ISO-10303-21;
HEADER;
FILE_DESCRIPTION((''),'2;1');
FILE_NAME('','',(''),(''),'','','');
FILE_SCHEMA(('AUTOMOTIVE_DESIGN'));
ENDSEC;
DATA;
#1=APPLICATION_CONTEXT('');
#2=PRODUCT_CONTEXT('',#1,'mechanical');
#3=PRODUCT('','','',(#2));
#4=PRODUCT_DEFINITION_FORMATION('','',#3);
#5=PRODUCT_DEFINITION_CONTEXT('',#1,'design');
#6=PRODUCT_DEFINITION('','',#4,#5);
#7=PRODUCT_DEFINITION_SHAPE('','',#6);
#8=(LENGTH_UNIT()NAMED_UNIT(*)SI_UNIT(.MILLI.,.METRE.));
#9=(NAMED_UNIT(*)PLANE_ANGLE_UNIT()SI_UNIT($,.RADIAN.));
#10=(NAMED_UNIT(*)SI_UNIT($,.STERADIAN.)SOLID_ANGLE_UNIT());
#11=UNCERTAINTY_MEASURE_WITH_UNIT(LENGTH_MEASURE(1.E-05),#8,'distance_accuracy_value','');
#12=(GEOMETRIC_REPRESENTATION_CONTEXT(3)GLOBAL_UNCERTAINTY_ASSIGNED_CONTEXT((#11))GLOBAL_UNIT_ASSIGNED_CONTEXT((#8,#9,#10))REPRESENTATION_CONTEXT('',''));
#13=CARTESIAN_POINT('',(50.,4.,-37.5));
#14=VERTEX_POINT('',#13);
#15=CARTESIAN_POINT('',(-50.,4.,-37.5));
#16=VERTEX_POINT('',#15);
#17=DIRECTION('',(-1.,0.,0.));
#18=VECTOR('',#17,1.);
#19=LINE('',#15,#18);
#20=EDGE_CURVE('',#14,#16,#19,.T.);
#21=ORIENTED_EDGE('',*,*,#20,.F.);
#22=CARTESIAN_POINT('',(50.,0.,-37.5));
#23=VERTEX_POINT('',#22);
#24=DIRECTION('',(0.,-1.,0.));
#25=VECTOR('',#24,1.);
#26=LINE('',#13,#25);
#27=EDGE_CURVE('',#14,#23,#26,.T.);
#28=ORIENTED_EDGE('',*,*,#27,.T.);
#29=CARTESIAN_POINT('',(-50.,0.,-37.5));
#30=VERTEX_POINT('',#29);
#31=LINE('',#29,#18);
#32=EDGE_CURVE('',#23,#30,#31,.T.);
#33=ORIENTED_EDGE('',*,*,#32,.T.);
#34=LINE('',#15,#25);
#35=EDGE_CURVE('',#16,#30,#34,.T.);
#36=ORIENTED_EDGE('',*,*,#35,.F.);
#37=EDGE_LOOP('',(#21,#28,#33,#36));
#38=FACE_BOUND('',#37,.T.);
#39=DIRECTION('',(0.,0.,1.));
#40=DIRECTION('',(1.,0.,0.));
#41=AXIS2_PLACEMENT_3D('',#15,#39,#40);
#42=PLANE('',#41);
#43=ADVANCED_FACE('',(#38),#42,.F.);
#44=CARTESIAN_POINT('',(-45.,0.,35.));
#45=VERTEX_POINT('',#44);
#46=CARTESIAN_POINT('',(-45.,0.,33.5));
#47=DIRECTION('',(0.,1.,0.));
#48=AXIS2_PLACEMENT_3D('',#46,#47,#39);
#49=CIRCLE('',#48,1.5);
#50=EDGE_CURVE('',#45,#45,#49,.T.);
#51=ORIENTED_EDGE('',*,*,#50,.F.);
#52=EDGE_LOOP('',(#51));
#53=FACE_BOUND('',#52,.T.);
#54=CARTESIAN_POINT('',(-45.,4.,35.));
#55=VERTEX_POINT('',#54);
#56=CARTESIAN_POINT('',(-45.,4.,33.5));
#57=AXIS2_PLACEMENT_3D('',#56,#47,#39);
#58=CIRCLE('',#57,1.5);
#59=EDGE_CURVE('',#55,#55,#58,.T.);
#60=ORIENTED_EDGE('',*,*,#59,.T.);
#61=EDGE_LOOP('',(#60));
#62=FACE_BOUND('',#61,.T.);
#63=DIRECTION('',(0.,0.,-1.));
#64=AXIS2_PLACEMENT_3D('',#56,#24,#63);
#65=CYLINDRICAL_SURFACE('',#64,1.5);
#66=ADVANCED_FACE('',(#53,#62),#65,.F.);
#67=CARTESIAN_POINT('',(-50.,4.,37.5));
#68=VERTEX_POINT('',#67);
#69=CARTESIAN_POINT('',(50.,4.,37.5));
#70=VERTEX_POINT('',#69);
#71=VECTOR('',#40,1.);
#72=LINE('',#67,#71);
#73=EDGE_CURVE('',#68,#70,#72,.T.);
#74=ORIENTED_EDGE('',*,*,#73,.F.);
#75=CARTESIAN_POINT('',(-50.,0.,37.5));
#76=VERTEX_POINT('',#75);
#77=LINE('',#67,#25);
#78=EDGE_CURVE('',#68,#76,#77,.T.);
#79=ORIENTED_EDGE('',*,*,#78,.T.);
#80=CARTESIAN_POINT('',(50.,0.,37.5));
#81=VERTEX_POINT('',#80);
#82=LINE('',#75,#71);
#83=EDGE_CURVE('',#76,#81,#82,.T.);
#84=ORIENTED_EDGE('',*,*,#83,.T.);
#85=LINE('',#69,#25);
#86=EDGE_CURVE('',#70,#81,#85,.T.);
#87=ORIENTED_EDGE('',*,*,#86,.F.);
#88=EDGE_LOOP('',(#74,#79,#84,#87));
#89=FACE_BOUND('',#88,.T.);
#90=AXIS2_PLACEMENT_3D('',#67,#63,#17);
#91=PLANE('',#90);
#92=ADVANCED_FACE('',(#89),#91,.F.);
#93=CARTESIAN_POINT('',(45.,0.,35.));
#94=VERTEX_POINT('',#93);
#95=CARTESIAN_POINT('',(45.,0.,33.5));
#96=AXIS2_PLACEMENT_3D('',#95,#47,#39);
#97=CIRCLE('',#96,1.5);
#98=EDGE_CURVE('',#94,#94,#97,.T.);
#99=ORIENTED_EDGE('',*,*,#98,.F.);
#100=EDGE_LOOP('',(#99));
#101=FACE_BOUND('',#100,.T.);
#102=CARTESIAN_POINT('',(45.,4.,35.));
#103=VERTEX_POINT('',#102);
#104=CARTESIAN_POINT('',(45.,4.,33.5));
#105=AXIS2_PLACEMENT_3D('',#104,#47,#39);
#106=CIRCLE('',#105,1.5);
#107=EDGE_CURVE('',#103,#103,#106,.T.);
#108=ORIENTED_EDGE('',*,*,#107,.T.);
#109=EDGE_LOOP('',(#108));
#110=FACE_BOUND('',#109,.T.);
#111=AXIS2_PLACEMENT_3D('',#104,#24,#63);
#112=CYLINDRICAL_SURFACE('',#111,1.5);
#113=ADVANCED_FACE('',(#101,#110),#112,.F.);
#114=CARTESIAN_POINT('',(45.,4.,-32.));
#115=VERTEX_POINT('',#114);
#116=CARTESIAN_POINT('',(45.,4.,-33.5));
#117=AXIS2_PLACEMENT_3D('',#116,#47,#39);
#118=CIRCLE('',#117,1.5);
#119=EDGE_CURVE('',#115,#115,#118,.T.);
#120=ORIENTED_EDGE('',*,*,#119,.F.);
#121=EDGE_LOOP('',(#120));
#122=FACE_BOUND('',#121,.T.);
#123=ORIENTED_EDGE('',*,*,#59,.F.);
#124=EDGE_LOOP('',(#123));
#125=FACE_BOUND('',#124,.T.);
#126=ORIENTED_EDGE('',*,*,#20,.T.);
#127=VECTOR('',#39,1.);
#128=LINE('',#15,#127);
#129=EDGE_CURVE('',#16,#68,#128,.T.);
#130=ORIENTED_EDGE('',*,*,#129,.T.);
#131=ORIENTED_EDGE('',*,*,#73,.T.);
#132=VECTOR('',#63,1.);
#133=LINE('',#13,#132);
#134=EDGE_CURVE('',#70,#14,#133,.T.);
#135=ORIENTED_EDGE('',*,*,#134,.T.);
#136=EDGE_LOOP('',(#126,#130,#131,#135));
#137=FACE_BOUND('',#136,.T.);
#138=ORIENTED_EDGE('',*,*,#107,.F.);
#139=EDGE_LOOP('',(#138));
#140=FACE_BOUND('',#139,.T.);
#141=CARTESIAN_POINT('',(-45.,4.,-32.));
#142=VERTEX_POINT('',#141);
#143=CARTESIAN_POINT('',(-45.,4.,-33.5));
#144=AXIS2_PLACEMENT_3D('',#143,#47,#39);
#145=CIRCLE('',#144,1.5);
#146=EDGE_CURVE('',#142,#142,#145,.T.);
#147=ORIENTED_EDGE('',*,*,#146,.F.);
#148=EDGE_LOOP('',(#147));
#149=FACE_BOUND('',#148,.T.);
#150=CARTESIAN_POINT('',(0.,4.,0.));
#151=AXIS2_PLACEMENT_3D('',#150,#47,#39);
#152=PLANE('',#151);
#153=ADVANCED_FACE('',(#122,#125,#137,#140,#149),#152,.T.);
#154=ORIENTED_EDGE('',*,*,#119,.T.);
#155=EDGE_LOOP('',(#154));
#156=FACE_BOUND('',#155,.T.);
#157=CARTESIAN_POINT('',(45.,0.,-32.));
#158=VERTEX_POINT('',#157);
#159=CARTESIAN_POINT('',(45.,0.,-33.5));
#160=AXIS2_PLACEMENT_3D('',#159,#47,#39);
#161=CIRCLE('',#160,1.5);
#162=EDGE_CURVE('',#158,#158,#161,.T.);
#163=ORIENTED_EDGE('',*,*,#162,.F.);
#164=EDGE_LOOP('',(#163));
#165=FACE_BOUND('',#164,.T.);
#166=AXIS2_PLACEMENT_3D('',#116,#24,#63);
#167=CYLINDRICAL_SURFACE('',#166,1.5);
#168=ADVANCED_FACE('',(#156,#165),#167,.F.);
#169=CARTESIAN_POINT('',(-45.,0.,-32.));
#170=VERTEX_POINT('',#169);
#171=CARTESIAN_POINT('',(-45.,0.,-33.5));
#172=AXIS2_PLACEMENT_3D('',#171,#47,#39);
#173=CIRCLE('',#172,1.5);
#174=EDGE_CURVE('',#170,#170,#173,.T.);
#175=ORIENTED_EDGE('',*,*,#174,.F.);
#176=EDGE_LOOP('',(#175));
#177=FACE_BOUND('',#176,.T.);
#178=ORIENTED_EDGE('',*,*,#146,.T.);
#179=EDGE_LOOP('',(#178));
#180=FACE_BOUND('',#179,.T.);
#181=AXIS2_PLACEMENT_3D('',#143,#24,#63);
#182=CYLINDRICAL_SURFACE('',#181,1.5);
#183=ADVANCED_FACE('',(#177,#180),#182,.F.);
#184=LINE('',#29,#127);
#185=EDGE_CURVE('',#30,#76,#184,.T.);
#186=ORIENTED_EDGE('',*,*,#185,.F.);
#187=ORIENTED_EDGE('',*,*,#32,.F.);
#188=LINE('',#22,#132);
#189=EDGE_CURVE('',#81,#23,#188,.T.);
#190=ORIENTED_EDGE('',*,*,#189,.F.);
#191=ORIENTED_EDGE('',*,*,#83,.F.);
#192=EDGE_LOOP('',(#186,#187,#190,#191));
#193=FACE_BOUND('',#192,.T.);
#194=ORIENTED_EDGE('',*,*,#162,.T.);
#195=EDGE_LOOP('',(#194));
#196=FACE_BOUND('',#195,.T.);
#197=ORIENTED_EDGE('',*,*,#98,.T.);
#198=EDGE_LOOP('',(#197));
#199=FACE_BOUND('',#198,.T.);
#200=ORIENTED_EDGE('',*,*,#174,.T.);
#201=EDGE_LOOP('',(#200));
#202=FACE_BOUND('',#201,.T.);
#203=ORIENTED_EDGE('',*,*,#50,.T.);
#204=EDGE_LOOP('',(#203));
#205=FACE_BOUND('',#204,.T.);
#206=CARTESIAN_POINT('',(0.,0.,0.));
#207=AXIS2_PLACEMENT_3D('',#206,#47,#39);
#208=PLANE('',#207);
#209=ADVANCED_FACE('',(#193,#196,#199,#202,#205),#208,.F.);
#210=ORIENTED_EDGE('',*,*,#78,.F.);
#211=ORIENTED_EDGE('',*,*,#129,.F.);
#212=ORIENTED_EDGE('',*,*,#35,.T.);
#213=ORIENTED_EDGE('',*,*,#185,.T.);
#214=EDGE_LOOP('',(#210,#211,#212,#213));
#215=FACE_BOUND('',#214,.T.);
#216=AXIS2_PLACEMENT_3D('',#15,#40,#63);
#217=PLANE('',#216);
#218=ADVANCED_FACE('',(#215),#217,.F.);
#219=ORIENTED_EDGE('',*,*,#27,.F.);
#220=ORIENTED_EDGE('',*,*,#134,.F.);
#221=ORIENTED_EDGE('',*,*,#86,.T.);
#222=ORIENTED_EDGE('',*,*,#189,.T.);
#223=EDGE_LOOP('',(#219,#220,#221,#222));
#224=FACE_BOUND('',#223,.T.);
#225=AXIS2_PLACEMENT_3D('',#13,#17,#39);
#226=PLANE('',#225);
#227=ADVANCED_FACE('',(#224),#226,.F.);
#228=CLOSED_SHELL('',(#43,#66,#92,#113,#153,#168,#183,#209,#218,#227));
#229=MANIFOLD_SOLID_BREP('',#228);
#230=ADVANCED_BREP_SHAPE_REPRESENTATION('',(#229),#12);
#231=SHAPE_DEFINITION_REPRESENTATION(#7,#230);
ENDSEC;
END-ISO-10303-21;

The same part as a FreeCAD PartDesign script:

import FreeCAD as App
import Part
import Sketcher


def add_polygon(sketch, points):
    """Adds a closed chain of lines whose ends are joined by coincident constraints."""
    first, n = sketch.GeometryCount, len(points)
    for a, b in zip(points, points[1:] + points[:1]):
        sketch.addGeometry(Part.LineSegment(App.Vector(*a, 0), App.Vector(*b, 0)), False)
    for i in range(n):
        sketch.addConstraint(Sketcher.Constraint("Coincident", first + i, 2, first + (i + 1) % n, 1))

doc = App.newDocument("Part")
body = doc.addObject("PartDesign::Body", "Body")

sketch1 = body.newObject("Sketcher::SketchObject", "Sketch")
sketch1.AttachmentSupport = (doc.getObject("XZ_Plane"), [""])
sketch1.MapMode = "FlatFace"
add_polygon(sketch1, [(-50, -37.5), (-50, 37.5), (50, 37.5), (50, -37.5)])
sketch1.addGeometry(Part.Circle(App.Vector(-45, 33.5, 0), App.Vector(0, 0, 1), 1.5), False)
sketch1.addGeometry(Part.Circle(App.Vector(45, 33.5, 0), App.Vector(0, 0, 1), 1.5), False)
sketch1.addGeometry(Part.Circle(App.Vector(-45, -33.5, 0), App.Vector(0, 0, 1), 1.5), False)
sketch1.addGeometry(Part.Circle(App.Vector(45, -33.5, 0), App.Vector(0, 0, 1), 1.5), False)
sketch1.addConstraint([
    Sketcher.Constraint("Vertical", 0),
    Sketcher.Constraint("Horizontal", 1),
    Sketcher.Constraint("Vertical", 2),
    Sketcher.Constraint("Horizontal", 3),
    Sketcher.Constraint("Equal", 4, 5),
    Sketcher.Constraint("Equal", 5, 6),
    Sketcher.Constraint("Equal", 6, 7),
    Sketcher.Constraint("Symmetric", 5, 3, 6, 3, -1, 1),
    Sketcher.Constraint("Symmetric", 4, 3, 7, 3, -1, 1),
    Sketcher.Constraint("Symmetric", 0, 2, 2, 2, -1, 1),
    Sketcher.Constraint("Symmetric", 4, 3, 5, 3, -2),
    Sketcher.Constraint("Diameter", 4, 3.0),
    Sketcher.Constraint("DistanceX", 1, 1, 1, 2, 100.0),
    Sketcher.Constraint("DistanceY", 0, 1, 0, 2, 75.0),
    Sketcher.Constraint("DistanceX", 4, 3, -1, 1, 45.0),
    Sketcher.Constraint("DistanceY", 6, 3, 4, 3, 67.0),
])
pad1 = body.newObject("PartDesign::Pad", "Pad")
pad1.Profile = sketch1
pad1.Length = 4
pad1.Reversed = True

doc.recompute()
